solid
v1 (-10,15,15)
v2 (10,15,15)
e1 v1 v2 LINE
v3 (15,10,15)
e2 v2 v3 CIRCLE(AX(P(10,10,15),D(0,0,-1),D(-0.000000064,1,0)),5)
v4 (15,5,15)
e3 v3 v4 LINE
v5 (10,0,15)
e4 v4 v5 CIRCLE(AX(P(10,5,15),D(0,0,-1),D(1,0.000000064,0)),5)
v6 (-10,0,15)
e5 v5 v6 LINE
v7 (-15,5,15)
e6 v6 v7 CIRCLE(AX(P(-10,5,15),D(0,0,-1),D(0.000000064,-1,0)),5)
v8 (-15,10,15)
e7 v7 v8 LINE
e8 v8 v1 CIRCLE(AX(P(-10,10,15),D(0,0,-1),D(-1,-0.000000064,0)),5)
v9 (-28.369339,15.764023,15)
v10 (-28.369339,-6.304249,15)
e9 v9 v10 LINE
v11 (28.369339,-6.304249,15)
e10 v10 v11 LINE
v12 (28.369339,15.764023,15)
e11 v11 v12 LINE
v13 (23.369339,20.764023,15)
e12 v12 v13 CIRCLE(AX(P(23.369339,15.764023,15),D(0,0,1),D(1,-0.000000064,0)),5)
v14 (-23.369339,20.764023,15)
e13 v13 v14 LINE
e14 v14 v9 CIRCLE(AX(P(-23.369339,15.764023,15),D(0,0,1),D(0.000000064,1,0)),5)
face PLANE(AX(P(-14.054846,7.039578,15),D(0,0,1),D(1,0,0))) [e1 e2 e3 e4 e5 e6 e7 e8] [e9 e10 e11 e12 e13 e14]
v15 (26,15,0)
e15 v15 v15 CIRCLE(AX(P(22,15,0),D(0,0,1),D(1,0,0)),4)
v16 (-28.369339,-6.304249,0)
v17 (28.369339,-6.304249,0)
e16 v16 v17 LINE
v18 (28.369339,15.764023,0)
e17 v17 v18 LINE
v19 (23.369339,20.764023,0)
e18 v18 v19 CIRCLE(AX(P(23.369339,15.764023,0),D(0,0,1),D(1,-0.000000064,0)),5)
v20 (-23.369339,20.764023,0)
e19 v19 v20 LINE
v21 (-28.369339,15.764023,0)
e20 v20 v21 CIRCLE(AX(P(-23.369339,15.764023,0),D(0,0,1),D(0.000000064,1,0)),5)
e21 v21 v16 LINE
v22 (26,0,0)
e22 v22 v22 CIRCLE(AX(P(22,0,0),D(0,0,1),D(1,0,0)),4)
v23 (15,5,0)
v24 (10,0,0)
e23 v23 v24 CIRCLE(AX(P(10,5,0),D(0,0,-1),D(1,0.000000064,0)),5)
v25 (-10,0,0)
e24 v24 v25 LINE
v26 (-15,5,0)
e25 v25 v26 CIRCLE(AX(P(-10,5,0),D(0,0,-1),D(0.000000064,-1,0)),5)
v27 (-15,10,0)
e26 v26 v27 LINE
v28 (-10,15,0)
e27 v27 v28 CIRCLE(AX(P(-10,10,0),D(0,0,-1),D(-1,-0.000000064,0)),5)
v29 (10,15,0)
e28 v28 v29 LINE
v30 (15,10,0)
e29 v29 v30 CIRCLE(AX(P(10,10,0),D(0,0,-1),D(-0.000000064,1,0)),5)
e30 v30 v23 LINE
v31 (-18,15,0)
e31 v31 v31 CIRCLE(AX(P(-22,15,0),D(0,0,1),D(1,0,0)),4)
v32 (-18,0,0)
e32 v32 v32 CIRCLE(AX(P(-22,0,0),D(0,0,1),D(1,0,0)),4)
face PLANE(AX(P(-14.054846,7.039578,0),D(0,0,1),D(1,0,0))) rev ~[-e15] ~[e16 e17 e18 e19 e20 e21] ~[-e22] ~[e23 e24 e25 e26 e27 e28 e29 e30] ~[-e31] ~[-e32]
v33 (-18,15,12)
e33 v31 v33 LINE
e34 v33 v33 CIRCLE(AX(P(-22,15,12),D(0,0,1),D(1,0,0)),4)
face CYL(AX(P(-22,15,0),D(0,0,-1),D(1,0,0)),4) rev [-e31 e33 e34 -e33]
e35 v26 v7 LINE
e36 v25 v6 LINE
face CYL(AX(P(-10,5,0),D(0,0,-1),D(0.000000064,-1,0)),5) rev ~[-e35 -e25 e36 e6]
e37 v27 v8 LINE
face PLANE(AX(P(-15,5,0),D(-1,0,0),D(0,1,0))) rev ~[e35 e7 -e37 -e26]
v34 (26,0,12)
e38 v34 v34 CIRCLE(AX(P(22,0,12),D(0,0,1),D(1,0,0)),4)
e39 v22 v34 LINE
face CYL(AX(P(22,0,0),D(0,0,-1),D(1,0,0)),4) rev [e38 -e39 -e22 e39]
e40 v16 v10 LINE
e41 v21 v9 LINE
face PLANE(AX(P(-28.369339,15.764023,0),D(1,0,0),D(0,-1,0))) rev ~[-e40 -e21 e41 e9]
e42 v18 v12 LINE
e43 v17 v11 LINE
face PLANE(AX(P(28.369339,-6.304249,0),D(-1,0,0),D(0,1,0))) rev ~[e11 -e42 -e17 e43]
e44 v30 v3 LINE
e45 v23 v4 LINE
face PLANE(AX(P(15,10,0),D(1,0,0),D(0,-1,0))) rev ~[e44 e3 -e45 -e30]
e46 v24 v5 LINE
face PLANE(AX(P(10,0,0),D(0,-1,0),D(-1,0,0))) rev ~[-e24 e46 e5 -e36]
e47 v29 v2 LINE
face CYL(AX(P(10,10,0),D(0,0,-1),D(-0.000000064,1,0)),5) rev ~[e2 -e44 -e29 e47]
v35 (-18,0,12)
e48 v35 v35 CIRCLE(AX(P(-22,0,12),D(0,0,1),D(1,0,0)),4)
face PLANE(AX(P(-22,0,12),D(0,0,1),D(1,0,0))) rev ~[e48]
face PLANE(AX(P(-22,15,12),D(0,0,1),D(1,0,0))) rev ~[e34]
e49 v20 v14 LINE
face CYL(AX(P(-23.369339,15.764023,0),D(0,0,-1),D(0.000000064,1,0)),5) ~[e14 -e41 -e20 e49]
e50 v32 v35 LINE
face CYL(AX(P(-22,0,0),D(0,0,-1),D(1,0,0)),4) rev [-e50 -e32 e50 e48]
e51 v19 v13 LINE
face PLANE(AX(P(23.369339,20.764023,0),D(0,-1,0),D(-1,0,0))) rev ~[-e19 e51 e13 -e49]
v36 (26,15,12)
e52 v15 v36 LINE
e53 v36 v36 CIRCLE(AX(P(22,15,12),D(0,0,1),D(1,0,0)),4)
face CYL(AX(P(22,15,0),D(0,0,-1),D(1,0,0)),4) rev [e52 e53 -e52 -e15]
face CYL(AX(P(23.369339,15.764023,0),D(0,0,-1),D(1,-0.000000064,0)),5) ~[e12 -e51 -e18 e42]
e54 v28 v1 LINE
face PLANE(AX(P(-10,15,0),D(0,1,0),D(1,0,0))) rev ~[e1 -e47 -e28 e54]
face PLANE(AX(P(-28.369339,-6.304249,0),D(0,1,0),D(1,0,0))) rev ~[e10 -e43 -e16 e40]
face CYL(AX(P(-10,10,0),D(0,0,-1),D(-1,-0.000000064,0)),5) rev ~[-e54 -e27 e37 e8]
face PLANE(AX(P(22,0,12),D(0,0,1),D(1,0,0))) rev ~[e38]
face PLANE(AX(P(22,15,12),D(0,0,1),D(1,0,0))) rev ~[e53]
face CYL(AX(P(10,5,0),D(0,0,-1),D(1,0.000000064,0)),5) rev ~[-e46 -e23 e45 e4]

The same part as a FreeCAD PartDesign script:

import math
import FreeCAD as App
import Part
import Sketcher
from FreeCAD import Vector

doc = App.newDocument("Part")
params = doc.addObject("Spreadsheet::Sheet", "Params")
for row, (alias, value) in enumerate([
    ("sketch1_radius", "5 mm"),
    ("sketch1_width", "20 mm"),
    ("sketch1_height", "5 mm"),
    ("pad1_length", "15 mm"),
    ("sketch2_diameter", "8 mm"),
    ("pocket1_length", "12 mm"),
], start=1):
    params.set(f"A{row}", alias)
    params.set(f"B{row}", "=" + value)
    params.setAlias(f"B{row}", alias)

body = doc.addObject("PartDesign::Body", "Body")

# Sketch on XY plane
sketch1 = body.newObject("Sketcher::SketchObject", "Sketch")
sketch1.AttachmentSupport = (doc.getObject("XY_Plane"), [""])
sketch1.MapMode = "FlatFace"
sketch1.addGeometry([
    Part.ArcOfCircle(Part.Circle(Vector(-23.4, 15.8, 0), Vector(0, 0, 1), 5), math.radians(90), math.radians(180)),  # 0
    Part.LineSegment(Vector(-28.4, 15.8, 0), Vector(-28.4, -6.3, 0)),  # 1
    Part.LineSegment(Vector(-28.4, -6.3, 0), Vector(28.4, -6.3, 0)),  # 2
    Part.LineSegment(Vector(28.4, -6.3, 0), Vector(28.4, 15.8, 0)),  # 3
    Part.ArcOfCircle(Part.Circle(Vector(23.4, 15.8, 0), Vector(0, 0, 1), 5), math.radians(0), math.radians(90)),  # 4
    Part.LineSegment(Vector(23.4, 20.8, 0), Vector(-23.4, 20.8, 0)),  # 5
    Part.LineSegment(Vector(-10, 15, 0), Vector(10, 15, 0)),  # 6
    Part.ArcOfCircle(Part.Circle(Vector(10, 10, 0), Vector(0, 0, 1), 5), math.radians(0), math.radians(90)),  # 7
    Part.LineSegment(Vector(15, 10, 0), Vector(15, 5, 0)),  # 8
    Part.ArcOfCircle(Part.Circle(Vector(10, 5, 0), Vector(0, 0, 1), 5), math.radians(-90), math.radians(0)),  # 9
    Part.LineSegment(Vector(10, 0, 0), Vector(-10, 0, 0)),  # 10
    Part.ArcOfCircle(Part.Circle(Vector(-10, 5, 0), Vector(0, 0, 1), 5), math.radians(180), math.radians(270)),  # 11
    Part.LineSegment(Vector(-15, 5, 0), Vector(-15, 10, 0)),  # 12
    Part.ArcOfCircle(Part.Circle(Vector(-10, 10, 0), Vector(0, 0, 1), 5), math.radians(90), math.radians(180)),  # 13
], False)
sketch1.addConstraint([
    Sketcher.Constraint("Tangent", 0, 2, 1, 1),
    Sketcher.Constraint("Coincident", 1, 2, 2, 1),
    Sketcher.Constraint("Coincident", 2, 2, 3, 1),
    Sketcher.Constraint("Tangent", 3, 2, 4, 1),
    Sketcher.Constraint("Tangent", 4, 2, 5, 1),
    Sketcher.Constraint("Tangent", 5, 2, 0, 1),
    Sketcher.Constraint("Tangent", 6, 2, 7, 2),
    Sketcher.Constraint("Tangent", 7, 1, 8, 1),
    Sketcher.Constraint("Tangent", 8, 2, 9, 2),
    Sketcher.Constraint("Tangent", 9, 1, 10, 1),
    Sketcher.Constraint("Tangent", 10, 2, 11, 2),
    Sketcher.Constraint("Tangent", 11, 1, 12, 1),
    Sketcher.Constraint("Tangent", 12, 2, 13, 2),
    Sketcher.Constraint("Tangent", 13, 1, 6, 1),
    Sketcher.Constraint("Vertical", 1),
    Sketcher.Constraint("Horizontal", 2),
    Sketcher.Constraint("Vertical", 3),
    Sketcher.Constraint("Horizontal", 5),
    Sketcher.Constraint("Horizontal", 6),
    Sketcher.Constraint("Vertical", 8),
    Sketcher.Constraint("Horizontal", 10),
    Sketcher.Constraint("Vertical", 12),
    Sketcher.Constraint("Equal", 0, 4),
    Sketcher.Constraint("Equal", 4, 7),
    Sketcher.Constraint("Equal", 7, 9),
    Sketcher.Constraint("Equal", 9, 11),
    Sketcher.Constraint("Equal", 11, 13),
    Sketcher.Constraint("Symmetric", 9, 1, 10, 2, -1, 1),
    Sketcher.Constraint("Radius", 0, 5.0),
    Sketcher.Constraint("DistanceX", 6, 1, 6, 2, 20.0),
    Sketcher.Constraint("DistanceY", 8, 2, 8, 1, 5.0),
    Sketcher.Constraint("DistanceX", 2, 1, 2, 2, 56.738678),
    Sketcher.Constraint("DistanceY", 1, 2, 1, 1, 22.068272),
    Sketcher.Constraint("DistanceX", 0, 3, -1, 1, 23.369339),
    Sketcher.Constraint("DistanceY", 1, 2, -1, 1, 6.304249),
])
sketch1.setExpression("Constraints[28]", "Params.sketch1_radius")
sketch1.setExpression("Constraints[29]", "Params.sketch1_width")
sketch1.setExpression("Constraints[30]", "Params.sketch1_height")
pad1 = body.newObject("PartDesign::Pad", "Pad")
pad1.Profile = sketch1
pad1.setExpression("Length", "Params.pad1_length")

# Sketch on XY plane
sketch2 = body.newObject("Sketcher::SketchObject", "Sketch001")
sketch2.AttachmentSupport = (doc.getObject("XY_Plane"), [""])
sketch2.MapMode = "FlatFace"
sketch2.addGeometry([
    Part.Circle(Vector(22, 15, 0), Vector(0, 0, 1), 4),
    Part.Circle(Vector(22, 0, 0), Vector(0, 0, 1), 4),
    Part.Circle(Vector(-22, 15, 0), Vector(0, 0, 1), 4),
    Part.Circle(Vector(-22, 0, 0), Vector(0, 0, 1), 4),
], False)
sketch2.addConstraint([
    Sketcher.Constraint("Equal", 0, 1),
    Sketcher.Constraint("Equal", 1, 2),
    Sketcher.Constraint("Equal", 2, 3),
    Sketcher.Constraint("Symmetric", 1, 3, 3, 3, -1, 1),
    Sketcher.Constraint("Symmetric", 0, 3, 2, 3, -2),
    Sketcher.Constraint("PointOnObject", 1, 3, -1),
    Sketcher.Constraint("Vertical", 0, 3, 1, 3),
    Sketcher.Constraint("Diameter", 0, 8.0),
    Sketcher.Constraint("DistanceX", -1, 1, 0, 3, 22.0),
    Sketcher.Constraint("DistanceY", -1, 1, 0, 3, 15.0),
])
sketch2.setExpression("Constraints[7]", "Params.sketch2_diameter")
pocket1 = body.newObject("PartDesign::Pocket", "Pocket")
pocket1.Profile = sketch2
pocket1.setExpression("Length", "Params.pocket1_length")
pocket1.Reversed = True

doc.recompute()
